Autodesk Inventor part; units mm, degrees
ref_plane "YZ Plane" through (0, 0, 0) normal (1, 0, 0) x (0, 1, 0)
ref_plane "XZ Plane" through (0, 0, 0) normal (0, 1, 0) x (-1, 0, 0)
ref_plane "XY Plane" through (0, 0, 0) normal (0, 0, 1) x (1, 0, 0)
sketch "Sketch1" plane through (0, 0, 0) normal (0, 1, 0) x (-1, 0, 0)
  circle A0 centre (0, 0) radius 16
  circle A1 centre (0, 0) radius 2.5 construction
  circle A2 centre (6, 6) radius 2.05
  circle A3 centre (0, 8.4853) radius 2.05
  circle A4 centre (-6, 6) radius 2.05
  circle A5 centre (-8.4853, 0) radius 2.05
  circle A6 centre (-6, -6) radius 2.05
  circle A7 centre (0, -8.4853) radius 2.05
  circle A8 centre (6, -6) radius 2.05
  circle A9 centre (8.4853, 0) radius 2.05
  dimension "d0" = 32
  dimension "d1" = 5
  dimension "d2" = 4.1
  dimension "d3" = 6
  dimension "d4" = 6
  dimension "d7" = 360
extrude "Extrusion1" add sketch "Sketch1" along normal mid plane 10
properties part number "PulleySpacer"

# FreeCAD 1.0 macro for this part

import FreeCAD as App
import Part
import Sketcher

V = App.Vector

doc = App.newDocument("Part")
params = doc.addObject("Spreadsheet::Sheet", "Params")
for row, (alias, value) in enumerate([
    ("sketch1_diameter", "32 mm"),
    ("sketch1_diameter2", "4.1 mm"),
    ("pad1_length", "10 mm"),
], start=1):
    params.set(f"A{row}", alias)
    params.set(f"B{row}", "=" + value)
    params.setAlias(f"B{row}", alias)

body = doc.addObject("PartDesign::Body", "Body")

# Sketch on XZ plane
sketch1 = body.newObject("Sketcher::SketchObject", "Sketch")
sketch1.AttachmentSupport = (doc.getObject("XZ_Plane"), [""])
sketch1.MapMode = "FlatFace"
sketch1.addGeometry([
    Part.Circle(V(0, 0, 0), V(0, 0, 1), 16),  # 0
    Part.Circle(V(6, -6, 0), V(0, 0, 1), 2),  # 1
    Part.Circle(V(0, -8.5, 0), V(0, 0, 1), 2),  # 2
    Part.Circle(V(-6, -6, 0), V(0, 0, 1), 2),  # 3
    Part.Circle(V(8.5, 0, 0), V(0, 0, 1), 2),  # 4
    Part.Circle(V(6, 6, 0), V(0, 0, 1), 2),  # 5
    Part.Circle(V(-6, 6, 0), V(0, 0, 1), 2),  # 6
    Part.Circle(V(-8.5, 0, 0), V(0, 0, 1), 2),  # 7
    Part.Circle(V(0, 8.5, 0), V(0, 0, 1), 2),  # 8
], False)
sketch1.addConstraint([
    Sketcher.Constraint("Coincident", 0, 3, -1, 1),
    Sketcher.Constraint("Equal", 1, 2),
    Sketcher.Constraint("Equal", 2, 3),
    Sketcher.Constraint("Equal", 3, 4),
    Sketcher.Constraint("Equal", 4, 5),
    Sketcher.Constraint("Equal", 5, 6),
    Sketcher.Constraint("Equal", 6, 7),
    Sketcher.Constraint("Equal", 7, 8),
    Sketcher.Constraint("Symmetric", 3, 3, 5, 3, -1, 1),
    Sketcher.Constraint("Symmetric", 1, 3, 6, 3, -1, 1),
    Sketcher.Constraint("Symmetric", 4, 3, 7, 3, -1, 1),
    Sketcher.Constraint("Symmetric", 2, 3, 8, 3, -1, 1),
    Sketcher.Constraint("Symmetric", 1, 3, 3, 3, -2),
    Sketcher.Constraint("PointOnObject", 2, 3, -2),
    Sketcher.Constraint("PointOnObject", 4, 3, -1),
    Sketcher.Constraint("Diameter", 0, 32.0),
    Sketcher.Constraint("Diameter", 1, 4.1),
    Sketcher.Constraint("DistanceX", -1, 1, 1, 3, 6.0),
    Sketcher.Constraint("DistanceY", 1, 3, -1, 1, 6.0),
    Sketcher.Constraint("DistanceY", 2, 3, -1, 1, 8.4853),
    Sketcher.Constraint("DistanceX", -1, 1, 4, 3, 8.4853),
])
sketch1.setExpression("Constraints[15]", "Params.sketch1_diameter")
sketch1.setExpression("Constraints[16]", "Params.sketch1_diameter2")
pad1 = body.newObject("PartDesign::Pad", "Pad")
pad1.Profile = sketch1
pad1.setExpression("Length", "Params.pad1_length")
pad1.Midplane = True

doc.recompute()
